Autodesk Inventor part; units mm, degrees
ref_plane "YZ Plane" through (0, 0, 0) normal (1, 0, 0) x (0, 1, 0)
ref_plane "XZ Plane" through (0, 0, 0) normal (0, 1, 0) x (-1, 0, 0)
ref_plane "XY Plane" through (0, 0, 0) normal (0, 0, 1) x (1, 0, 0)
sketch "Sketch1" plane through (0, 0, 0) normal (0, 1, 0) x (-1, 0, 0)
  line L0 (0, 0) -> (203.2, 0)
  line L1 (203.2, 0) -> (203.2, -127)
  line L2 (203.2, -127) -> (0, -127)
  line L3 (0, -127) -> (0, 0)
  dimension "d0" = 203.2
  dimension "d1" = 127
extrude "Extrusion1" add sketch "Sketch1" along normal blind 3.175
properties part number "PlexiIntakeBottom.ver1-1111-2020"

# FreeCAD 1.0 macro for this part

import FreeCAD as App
import Part
import Sketcher
from FreeCAD import Vector
Q = App.Units.Quantity


def add_polygon(sketch, points):
    """Adds a closed chain of lines whose ends are joined by coincident constraints."""
    first, n = sketch.GeometryCount, len(points)
    for a, b in zip(points, points[1:] + points[:1]):
        sketch.addGeometry(Part.LineSegment(App.Vector(*a, 0), App.Vector(*b, 0)), False)
    for i in range(n):
        sketch.addConstraint(Sketcher.Constraint("Coincident", first + i, 2, first + (i + 1) % n, 1))

doc = App.newDocument("Part")
body = doc.addObject("PartDesign::Body", "Body")

sketch1 = body.newObject("Sketcher::SketchObject", "Sketch")
sketch1.AttachmentSupport = (doc.getObject("XZ_Plane"), [""])
sketch1.MapMode = "FlatFace"
add_polygon(sketch1, [(-203, 0), (0, 0), (0, -127), (-203, -127)])
sketch1.addConstraint([
    Sketcher.Constraint("Horizontal", 0),
    Sketcher.Constraint("Vertical", 1),
    Sketcher.Constraint("Horizontal", 2),
    Sketcher.Constraint("Vertical", 3),
    Sketcher.Constraint("Coincident", 0, 2, -1, 1),
    Sketcher.Constraint("DistanceX", 0, 1, 0, 2, Q("8 in")),
    Sketcher.Constraint("DistanceY", 1, 2, 1, 1, Q("5 in")),
])
pad1 = body.newObject("PartDesign::Pad", "Pad")
pad1.Profile = sketch1
pad1.Length = Q("0.125 in")
pad1.Reversed = True

doc.recompute()
